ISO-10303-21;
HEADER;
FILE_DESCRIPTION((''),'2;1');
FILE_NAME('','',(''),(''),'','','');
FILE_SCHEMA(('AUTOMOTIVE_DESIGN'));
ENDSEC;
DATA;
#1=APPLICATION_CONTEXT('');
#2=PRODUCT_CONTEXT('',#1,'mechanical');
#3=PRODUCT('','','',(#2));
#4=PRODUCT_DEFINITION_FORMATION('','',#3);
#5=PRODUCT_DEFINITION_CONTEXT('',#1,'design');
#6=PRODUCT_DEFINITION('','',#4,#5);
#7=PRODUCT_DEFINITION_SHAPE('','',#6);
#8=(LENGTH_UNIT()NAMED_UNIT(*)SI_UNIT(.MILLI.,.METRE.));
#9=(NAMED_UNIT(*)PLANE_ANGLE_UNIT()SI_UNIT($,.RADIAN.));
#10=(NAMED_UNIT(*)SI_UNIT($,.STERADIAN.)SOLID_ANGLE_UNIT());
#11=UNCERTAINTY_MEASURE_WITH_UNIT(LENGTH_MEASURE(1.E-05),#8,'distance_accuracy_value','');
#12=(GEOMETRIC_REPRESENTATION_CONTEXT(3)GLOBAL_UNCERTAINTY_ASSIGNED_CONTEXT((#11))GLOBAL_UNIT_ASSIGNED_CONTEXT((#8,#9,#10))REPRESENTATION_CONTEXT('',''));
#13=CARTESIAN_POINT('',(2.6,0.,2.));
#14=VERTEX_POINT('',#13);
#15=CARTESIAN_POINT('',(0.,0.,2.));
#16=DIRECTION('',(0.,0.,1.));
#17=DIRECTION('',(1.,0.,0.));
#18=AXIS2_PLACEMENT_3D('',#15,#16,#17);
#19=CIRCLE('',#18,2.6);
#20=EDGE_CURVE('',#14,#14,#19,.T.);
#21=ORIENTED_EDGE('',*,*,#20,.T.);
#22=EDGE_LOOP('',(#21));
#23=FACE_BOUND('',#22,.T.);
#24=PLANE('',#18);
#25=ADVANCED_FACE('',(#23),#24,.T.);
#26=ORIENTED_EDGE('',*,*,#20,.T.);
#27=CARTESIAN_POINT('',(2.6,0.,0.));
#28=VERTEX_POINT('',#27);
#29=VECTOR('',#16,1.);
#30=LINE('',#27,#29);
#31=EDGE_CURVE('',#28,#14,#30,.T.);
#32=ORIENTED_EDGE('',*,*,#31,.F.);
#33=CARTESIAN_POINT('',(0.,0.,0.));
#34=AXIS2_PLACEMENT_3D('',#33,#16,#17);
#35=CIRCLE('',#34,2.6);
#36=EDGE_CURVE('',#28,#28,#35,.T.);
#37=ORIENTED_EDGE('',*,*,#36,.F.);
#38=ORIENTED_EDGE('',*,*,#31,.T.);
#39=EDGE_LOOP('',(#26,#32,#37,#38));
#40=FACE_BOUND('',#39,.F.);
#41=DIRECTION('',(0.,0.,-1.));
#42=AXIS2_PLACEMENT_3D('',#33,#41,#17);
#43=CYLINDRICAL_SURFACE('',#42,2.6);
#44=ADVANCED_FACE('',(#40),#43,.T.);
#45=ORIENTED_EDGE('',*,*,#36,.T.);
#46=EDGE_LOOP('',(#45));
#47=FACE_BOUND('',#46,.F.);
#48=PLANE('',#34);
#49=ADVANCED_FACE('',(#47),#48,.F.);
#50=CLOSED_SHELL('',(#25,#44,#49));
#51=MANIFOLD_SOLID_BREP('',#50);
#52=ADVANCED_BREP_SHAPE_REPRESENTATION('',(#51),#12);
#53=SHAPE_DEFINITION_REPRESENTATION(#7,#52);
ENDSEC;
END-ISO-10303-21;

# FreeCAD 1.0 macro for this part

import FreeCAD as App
import Part
import Sketcher
from FreeCAD import Vector
Q = App.Units.Quantity

doc = App.newDocument("Part")
body = doc.addObject("PartDesign::Body", "Body")

sketch1 = body.newObject("Sketcher::SketchObject", "Sketch")
sketch1.AttachmentSupport = (doc.getObject("XY_Plane"), [""])
sketch1.MapMode = "FlatFace"
sketch1.addGeometry(Part.Circle(Vector(0, 0, 0), Vector(0, 0, 1), 2.6), False)
sketch1.addConstraint(Sketcher.Constraint("Coincident", 0, 3, -1, 1))
sketch1.addConstraint(Sketcher.Constraint("Diameter", 0, Q("5.2 mm")))
pad1 = body.newObject("PartDesign::Pad", "Pad")
pad1.Profile = sketch1
pad1.Length = 2

doc.recompute()
